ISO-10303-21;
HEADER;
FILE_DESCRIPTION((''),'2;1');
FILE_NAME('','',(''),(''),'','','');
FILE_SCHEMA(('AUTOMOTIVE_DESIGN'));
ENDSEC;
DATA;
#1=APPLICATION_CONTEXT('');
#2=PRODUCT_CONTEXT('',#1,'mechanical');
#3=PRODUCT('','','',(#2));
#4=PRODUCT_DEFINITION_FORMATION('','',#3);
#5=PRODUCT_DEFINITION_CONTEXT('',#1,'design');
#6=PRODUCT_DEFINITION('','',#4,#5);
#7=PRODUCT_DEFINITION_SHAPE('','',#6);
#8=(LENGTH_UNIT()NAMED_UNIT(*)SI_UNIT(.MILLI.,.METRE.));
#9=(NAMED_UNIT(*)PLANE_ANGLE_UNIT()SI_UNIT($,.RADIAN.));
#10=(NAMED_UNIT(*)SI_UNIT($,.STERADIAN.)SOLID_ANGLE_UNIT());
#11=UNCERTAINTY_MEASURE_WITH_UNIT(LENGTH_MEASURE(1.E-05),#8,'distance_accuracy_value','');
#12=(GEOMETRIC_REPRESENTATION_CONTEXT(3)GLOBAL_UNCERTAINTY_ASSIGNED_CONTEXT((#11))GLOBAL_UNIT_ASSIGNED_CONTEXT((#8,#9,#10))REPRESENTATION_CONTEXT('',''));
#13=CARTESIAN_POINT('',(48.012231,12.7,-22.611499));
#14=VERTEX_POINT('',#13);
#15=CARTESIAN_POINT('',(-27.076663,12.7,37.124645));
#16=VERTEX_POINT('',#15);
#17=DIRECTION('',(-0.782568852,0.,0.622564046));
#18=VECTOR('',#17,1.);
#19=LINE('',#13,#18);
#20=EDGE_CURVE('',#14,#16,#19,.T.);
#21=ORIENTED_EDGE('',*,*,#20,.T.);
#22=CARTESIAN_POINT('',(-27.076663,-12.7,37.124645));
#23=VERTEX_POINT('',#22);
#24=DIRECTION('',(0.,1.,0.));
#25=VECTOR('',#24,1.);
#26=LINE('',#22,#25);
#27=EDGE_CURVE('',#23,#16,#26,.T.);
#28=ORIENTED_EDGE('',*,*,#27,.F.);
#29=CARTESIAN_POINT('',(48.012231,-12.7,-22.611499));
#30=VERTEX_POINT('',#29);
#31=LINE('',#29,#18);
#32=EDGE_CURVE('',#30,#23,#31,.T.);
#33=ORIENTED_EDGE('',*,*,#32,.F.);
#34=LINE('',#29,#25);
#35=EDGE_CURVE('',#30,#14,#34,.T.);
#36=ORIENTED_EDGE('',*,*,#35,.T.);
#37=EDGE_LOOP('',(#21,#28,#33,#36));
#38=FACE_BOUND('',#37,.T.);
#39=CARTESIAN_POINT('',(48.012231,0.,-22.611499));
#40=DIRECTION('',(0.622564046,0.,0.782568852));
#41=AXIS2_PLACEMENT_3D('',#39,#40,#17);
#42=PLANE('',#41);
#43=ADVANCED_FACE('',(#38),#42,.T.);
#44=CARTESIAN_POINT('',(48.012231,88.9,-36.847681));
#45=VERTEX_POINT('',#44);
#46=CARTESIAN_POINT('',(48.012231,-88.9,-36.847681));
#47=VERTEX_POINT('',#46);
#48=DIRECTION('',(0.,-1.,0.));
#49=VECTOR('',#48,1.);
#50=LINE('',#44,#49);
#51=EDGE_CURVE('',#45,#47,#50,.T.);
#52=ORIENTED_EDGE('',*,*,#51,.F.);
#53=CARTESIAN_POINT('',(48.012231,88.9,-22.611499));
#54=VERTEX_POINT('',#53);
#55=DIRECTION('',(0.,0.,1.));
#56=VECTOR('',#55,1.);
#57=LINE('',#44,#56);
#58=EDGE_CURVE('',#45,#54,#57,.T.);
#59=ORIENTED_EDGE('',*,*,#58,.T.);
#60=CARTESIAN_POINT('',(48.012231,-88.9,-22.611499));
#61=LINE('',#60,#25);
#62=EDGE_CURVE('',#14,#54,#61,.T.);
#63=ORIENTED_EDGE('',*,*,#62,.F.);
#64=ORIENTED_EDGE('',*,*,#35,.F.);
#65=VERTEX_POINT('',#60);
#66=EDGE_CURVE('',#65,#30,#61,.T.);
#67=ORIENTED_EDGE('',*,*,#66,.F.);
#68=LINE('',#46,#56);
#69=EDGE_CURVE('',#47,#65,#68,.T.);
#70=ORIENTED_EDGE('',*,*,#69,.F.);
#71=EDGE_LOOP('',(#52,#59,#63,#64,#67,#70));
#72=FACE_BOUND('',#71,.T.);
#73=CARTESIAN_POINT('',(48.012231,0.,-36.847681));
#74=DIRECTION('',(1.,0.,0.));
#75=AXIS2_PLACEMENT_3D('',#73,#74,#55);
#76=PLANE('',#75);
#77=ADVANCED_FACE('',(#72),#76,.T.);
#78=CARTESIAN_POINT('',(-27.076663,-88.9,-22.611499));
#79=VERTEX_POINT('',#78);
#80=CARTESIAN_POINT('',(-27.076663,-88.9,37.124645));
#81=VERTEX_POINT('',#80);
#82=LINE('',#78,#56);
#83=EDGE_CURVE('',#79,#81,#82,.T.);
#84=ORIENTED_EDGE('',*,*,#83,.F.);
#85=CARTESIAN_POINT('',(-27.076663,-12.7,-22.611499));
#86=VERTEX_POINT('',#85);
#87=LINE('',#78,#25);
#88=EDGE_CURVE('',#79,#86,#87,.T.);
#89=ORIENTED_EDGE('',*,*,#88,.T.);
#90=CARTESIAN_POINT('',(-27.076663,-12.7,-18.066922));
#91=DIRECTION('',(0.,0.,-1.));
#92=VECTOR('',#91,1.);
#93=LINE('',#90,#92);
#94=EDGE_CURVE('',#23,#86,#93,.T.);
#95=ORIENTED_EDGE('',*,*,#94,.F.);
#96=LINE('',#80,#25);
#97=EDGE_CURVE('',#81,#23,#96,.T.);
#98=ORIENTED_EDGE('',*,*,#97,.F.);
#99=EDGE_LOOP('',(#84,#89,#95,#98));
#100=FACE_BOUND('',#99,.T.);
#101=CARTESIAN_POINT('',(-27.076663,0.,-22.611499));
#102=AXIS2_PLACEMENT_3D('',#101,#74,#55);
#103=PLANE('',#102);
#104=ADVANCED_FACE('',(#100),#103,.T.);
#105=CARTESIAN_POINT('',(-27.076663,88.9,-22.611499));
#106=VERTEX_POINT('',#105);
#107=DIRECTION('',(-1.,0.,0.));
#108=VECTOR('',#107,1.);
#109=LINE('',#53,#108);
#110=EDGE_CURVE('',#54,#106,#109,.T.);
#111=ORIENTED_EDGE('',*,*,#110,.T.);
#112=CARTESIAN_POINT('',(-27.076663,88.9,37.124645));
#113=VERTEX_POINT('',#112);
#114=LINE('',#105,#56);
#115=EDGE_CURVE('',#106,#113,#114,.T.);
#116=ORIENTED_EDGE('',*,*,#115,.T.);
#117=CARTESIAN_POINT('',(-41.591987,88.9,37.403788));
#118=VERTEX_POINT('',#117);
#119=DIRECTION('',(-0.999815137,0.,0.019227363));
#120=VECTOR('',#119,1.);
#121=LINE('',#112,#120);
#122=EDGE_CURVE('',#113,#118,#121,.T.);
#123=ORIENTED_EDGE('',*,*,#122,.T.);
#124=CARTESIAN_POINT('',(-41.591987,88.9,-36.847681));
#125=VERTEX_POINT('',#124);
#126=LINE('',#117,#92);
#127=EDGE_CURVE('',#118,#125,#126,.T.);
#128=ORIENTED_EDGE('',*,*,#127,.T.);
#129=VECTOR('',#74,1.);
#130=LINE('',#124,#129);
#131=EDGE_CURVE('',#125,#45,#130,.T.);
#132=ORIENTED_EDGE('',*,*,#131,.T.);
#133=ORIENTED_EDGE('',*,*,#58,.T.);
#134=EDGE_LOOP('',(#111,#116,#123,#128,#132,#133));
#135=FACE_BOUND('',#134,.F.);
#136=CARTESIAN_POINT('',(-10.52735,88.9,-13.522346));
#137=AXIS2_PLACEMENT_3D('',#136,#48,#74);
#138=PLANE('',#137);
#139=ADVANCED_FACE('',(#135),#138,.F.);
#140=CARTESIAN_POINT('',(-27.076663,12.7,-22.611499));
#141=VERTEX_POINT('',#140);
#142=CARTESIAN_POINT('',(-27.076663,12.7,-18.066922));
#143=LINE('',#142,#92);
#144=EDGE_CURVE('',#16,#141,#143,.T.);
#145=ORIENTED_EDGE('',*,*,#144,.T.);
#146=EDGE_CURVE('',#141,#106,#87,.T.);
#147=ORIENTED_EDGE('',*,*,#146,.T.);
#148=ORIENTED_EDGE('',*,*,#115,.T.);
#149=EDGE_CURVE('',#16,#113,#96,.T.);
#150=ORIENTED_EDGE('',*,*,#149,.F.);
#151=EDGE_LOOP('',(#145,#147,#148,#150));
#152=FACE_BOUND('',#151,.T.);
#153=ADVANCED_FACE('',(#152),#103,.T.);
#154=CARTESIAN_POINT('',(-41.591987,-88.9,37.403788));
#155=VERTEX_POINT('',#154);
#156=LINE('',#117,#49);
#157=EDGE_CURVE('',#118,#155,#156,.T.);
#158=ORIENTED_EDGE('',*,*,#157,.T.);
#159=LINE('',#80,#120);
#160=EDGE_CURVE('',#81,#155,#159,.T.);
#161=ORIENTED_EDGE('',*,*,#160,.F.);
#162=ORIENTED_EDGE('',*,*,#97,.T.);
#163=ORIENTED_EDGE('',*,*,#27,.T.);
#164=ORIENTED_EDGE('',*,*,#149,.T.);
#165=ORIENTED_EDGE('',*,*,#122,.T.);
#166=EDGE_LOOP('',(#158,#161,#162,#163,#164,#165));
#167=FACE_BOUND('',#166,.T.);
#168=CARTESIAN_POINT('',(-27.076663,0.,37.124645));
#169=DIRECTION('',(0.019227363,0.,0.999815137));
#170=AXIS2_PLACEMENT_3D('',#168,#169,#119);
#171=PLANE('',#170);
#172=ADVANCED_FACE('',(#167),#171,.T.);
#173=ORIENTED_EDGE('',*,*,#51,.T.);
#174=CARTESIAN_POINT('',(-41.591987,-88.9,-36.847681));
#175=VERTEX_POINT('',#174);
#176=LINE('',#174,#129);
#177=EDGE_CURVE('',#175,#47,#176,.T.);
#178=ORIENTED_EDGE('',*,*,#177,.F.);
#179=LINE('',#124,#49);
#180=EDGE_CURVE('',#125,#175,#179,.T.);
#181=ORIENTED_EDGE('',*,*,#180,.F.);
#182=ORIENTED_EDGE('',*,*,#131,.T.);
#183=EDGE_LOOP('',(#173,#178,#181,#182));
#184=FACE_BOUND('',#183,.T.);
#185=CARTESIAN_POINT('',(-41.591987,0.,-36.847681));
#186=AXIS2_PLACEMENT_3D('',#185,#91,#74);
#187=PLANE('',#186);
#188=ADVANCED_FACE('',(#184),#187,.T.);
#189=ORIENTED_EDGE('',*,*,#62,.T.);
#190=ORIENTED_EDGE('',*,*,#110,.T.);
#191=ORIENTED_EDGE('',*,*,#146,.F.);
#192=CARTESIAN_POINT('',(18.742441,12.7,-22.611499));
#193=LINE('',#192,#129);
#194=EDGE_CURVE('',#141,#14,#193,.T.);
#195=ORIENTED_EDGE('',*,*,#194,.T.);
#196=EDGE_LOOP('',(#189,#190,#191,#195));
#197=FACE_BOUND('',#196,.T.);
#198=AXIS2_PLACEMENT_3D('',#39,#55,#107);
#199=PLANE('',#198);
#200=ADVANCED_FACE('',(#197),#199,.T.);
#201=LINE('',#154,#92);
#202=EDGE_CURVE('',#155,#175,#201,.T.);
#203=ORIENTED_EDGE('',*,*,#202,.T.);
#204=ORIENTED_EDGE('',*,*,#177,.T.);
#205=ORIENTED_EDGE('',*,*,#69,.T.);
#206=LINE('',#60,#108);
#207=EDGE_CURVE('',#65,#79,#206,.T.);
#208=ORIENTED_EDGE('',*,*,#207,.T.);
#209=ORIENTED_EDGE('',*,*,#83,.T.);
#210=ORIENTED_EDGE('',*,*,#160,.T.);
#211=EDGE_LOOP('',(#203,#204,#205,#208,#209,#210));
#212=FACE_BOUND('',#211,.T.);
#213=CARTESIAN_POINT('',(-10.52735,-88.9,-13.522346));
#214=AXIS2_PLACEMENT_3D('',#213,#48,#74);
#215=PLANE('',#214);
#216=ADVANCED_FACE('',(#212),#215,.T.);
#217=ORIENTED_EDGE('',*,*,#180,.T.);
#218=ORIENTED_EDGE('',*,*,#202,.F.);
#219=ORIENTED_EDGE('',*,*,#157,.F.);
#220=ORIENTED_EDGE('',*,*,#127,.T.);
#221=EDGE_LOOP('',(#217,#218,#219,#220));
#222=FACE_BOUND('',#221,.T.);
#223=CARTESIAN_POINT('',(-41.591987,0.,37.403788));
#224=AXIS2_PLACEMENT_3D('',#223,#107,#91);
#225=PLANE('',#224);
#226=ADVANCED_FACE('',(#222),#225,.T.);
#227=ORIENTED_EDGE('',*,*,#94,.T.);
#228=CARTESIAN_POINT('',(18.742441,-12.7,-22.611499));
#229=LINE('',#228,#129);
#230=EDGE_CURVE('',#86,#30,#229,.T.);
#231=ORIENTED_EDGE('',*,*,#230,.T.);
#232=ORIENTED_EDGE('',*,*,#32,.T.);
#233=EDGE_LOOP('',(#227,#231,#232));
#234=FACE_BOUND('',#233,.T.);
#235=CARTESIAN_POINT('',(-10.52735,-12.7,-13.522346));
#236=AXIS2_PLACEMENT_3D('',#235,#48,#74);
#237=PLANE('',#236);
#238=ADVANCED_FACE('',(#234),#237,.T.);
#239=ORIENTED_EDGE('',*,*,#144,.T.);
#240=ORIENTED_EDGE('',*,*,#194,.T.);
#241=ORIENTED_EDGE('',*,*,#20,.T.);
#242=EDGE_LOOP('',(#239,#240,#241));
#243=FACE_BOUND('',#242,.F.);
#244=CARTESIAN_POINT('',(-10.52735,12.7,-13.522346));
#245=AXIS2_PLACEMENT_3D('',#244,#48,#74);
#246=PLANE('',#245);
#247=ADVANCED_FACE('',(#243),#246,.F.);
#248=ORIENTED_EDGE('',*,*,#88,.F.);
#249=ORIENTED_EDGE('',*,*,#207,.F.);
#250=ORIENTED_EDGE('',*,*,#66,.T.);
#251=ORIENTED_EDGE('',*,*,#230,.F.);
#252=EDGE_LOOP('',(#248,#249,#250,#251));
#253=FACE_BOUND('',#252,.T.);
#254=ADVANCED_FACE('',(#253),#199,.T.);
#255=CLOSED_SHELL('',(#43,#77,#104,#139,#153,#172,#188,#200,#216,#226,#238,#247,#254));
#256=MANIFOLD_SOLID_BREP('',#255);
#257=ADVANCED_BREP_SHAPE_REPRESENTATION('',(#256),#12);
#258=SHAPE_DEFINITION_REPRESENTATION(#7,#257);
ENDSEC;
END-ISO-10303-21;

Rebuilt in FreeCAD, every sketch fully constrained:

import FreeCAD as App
import Part
import Sketcher

V = App.Vector
Q = App.Units.Quantity

doc = App.newDocument("Part")
params = doc.addObject("Spreadsheet::Sheet", "Params")
for row, (alias, value) in enumerate([
    ("pad1_length", "7 in"),
    ("pad2_length", "1 in"),
], start=1):
    params.set(f"A{row}", alias)
    params.set(f"B{row}", "=" + value)
    params.setAlias(f"B{row}", alias)

body = doc.addObject("PartDesign::Body", "Body")

sketch1 = body.newObject("Sketcher::SketchObject", "Sketch")
sketch1.AttachmentSupport = (doc.getObject("XZ_Plane"), [""])
sketch1.MapMode = "FlatFace"
sketch1.addGeometry([
    Part.LineSegment(V(-27, 37, 0), V(-42, 37, 0)),
    Part.LineSegment(V(-42, 37, 0), V(-42, -37, 0)),
    Part.LineSegment(V(-42, -37, 0), V(48, -37, 0)),
    Part.LineSegment(V(48, -37, 0), V(48, -23, 0)),
    Part.LineSegment(V(48, -23, 0), V(-27, -23, 0)),
    Part.LineSegment(V(-27, -23, 0), V(-27, 37, 0)),
], False)
sketch1.addConstraint([
    Sketcher.Constraint("Coincident", 0, 2, 1, 1),
    Sketcher.Constraint("Coincident", 1, 2, 2, 1),
    Sketcher.Constraint("Coincident", 2, 2, 3, 1),
    Sketcher.Constraint("Coincident", 3, 2, 4, 1),
    Sketcher.Constraint("Coincident", 4, 2, 5, 1),
    Sketcher.Constraint("Coincident", 5, 2, 0, 1),
    Sketcher.Constraint("Vertical", 1),
    Sketcher.Constraint("Horizontal", 2),
    Sketcher.Constraint("Vertical", 3),
    Sketcher.Constraint("Horizontal", 4),
    Sketcher.Constraint("Vertical", 5),
    Sketcher.Constraint("DistanceY", -1, 1, 5, 2, Q("1.4616002 in")),
    Sketcher.Constraint("DistanceX", 2, 1, 2, 2, Q("89.604218 mm")),
    Sketcher.Constraint("DistanceY", 1, 2, 1, 1, Q("74.251469 mm")),
    Sketcher.Constraint("DistanceY", 3, 2, -1, 1, Q("22.611499 mm")),
    Sketcher.Constraint("DistanceX", 4, 2, 4, 1, Q("75.088894 mm")),
    Sketcher.Constraint("DistanceY", 3, 1, 3, 2, Q("14.236182 mm")),
    Sketcher.Constraint("DistanceX", -1, 1, 2, 2, Q("48.012231 mm")),
])
pad1 = body.newObject("PartDesign::Pad", "Pad")
pad1.Profile = sketch1
pad1.setExpression("Length", "Params.pad1_length")
pad1.Midplane = True

sketch2 = body.newObject("Sketcher::SketchObject", "Sketch001")
sketch2.AttachmentSupport = (doc.getObject("XZ_Plane"), [""])
sketch2.MapMode = "FlatFace"
sketch2.addGeometry([
    Part.LineSegment(V(-27, 37, 0), V(-42, 37, 0)),
    Part.LineSegment(V(-42, 37, 0), V(-42, -37, 0)),
    Part.LineSegment(V(-42, -37, 0), V(48, -37, 0)),
    Part.LineSegment(V(48, -37, 0), V(48, -23, 0)),
    Part.LineSegment(V(48, -23, 0), V(-27, 37, 0)),
], False)
sketch2.addConstraint([
    Sketcher.Constraint("Coincident", 0, 2, 1, 1),
    Sketcher.Constraint("Coincident", 1, 2, 2, 1),
    Sketcher.Constraint("Coincident", 2, 2, 3, 1),
    Sketcher.Constraint("Coincident", 3, 2, 4, 1),
    Sketcher.Constraint("Coincident", 4, 2, 0, 1),
    Sketcher.Constraint("Vertical", 1),
    Sketcher.Constraint("Horizontal", 2),
    Sketcher.Constraint("Vertical", 3),
    Sketcher.Constraint("DistanceY", -1, 1, 4, 2, Q("1.4616002 in")),
    Sketcher.Constraint("DistanceX", 2, 1, 2, 2, Q("89.604218 mm")),
    Sketcher.Constraint("DistanceY", 1, 2, 1, 1, Q("74.251469 mm")),
    Sketcher.Constraint("DistanceY", 3, 2, -1, 1, Q("22.611499 mm")),
    Sketcher.Constraint("DistanceY", 3, 1, 3, 2, Q("14.236182 mm")),
    Sketcher.Constraint("DistanceX", -1, 1, 2, 2, Q("48.012231 mm")),
    Sketcher.Constraint("Distance", 0, Q("14.518008 mm")),
])
pad2 = body.newObject("PartDesign::Pad", "Pad001")
pad2.Profile = sketch2
pad2.setExpression("Length", "Params.pad2_length")
pad2.Midplane = True

doc.recompute()
